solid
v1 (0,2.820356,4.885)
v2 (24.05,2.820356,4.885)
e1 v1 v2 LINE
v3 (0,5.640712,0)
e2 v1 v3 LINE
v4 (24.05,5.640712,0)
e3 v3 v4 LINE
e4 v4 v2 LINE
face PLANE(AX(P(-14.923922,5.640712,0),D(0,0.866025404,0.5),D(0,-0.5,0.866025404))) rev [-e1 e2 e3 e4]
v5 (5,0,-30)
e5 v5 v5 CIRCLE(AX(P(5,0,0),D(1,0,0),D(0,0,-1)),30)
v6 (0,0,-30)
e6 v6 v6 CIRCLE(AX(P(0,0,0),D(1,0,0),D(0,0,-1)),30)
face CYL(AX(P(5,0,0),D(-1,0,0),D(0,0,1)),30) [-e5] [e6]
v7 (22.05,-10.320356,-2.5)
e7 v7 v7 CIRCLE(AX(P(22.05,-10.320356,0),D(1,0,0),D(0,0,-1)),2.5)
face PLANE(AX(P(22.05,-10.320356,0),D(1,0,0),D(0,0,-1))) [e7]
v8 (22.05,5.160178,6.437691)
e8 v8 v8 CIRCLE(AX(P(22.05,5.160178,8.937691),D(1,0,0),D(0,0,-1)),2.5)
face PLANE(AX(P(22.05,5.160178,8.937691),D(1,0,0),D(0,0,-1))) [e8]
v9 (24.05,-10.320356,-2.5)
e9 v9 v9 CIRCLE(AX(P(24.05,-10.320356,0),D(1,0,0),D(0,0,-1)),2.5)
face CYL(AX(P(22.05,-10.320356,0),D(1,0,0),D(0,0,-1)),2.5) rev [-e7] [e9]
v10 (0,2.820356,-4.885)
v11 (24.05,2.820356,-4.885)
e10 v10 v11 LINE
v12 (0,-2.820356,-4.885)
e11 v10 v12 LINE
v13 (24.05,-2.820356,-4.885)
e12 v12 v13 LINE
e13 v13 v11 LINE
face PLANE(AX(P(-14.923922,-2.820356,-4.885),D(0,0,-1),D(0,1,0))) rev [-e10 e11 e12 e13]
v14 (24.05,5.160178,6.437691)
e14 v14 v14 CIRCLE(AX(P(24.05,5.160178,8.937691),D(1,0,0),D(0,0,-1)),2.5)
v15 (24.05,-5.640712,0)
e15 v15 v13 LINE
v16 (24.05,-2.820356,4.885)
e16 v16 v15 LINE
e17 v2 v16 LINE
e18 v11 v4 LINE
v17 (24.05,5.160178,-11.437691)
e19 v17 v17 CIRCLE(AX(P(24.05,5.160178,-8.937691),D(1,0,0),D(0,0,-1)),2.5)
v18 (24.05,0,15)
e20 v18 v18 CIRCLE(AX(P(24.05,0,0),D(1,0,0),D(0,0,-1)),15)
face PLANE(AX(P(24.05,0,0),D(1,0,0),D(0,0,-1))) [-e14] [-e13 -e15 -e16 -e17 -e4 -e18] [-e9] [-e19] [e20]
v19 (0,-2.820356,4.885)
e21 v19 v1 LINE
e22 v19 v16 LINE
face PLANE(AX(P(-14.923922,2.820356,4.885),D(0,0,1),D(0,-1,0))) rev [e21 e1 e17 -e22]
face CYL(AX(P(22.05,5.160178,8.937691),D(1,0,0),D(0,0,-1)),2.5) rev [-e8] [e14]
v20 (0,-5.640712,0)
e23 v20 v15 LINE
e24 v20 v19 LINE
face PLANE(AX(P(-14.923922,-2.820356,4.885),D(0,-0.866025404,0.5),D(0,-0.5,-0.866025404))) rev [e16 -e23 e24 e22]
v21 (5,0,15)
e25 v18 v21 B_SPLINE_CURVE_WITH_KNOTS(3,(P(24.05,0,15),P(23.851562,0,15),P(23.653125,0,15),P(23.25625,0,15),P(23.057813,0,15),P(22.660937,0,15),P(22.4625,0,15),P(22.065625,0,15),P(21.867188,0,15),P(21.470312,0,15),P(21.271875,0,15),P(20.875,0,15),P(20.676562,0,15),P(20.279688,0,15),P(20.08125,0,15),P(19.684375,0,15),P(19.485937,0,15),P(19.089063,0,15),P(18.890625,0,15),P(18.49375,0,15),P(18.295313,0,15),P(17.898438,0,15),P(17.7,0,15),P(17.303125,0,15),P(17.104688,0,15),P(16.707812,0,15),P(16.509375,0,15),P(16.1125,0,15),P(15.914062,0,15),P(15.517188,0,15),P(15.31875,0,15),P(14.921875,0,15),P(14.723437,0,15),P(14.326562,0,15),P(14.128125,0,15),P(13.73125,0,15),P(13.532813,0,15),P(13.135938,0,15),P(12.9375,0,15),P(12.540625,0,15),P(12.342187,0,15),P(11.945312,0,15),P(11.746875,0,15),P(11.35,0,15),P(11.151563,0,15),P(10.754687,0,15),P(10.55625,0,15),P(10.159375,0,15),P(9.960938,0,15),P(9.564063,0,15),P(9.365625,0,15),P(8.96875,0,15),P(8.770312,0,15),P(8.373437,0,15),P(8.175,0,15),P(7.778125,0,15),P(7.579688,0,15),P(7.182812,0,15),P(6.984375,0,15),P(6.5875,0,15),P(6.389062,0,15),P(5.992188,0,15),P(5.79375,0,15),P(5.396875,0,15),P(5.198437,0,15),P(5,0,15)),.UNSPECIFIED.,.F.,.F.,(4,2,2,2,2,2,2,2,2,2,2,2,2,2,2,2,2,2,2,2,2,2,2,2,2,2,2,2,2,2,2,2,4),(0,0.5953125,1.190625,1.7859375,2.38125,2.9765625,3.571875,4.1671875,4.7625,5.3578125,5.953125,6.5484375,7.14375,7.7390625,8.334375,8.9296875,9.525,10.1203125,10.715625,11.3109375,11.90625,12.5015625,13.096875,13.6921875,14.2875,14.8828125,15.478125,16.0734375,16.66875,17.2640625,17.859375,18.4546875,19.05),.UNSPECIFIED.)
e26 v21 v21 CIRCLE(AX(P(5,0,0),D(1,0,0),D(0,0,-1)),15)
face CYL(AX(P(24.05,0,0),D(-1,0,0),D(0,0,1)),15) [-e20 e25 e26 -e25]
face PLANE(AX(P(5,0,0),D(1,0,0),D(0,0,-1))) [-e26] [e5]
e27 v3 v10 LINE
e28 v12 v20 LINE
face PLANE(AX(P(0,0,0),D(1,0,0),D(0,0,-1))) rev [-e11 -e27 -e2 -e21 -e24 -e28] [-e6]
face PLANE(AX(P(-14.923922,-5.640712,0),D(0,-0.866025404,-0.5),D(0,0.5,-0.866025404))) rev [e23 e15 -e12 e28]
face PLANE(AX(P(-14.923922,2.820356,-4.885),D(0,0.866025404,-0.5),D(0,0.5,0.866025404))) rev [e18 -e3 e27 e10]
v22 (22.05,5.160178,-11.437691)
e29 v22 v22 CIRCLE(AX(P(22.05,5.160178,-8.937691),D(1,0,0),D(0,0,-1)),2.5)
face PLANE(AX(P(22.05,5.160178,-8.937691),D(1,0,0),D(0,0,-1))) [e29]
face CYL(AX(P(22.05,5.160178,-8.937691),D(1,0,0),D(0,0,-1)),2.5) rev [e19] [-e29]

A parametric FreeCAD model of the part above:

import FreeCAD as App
import Part
import Sketcher
Q = App.Units.Quantity

doc = App.newDocument("Part")
body = doc.addObject("PartDesign::Body", "Body")

# Sketch on YZ plane
sketch1 = body.newObject("Sketcher::SketchObject", "Sketch")
sketch1.AttachmentSupport = (doc.getObject("YZ_Plane"), [""])
sketch1.MapMode = "FlatFace"
sketch1.addGeometry(Part.Circle(App.Vector(0, 0, 0), App.Vector(0, 0, 1), 30), False)
sketch1.addConstraint([
    Sketcher.Constraint("Coincident", 0, 3, -1, 1),
    Sketcher.Constraint("Diameter", 0, 60.0),
])
pad1 = body.newObject("PartDesign::Pad", "Pad")
pad1.Profile = sketch1
pad1.Length = 5

# Sketch on YZ plane
sketch2 = body.newObject("Sketcher::SketchObject", "Sketch001")
sketch2.AttachmentSupport = (doc.getObject("YZ_Plane"), [""])
sketch2.MapMode = "FlatFace"
sketch2.AttachmentOffset = App.Placement(App.Vector(0, 0, 5), App.Rotation())
sketch2.addGeometry(Part.Circle(App.Vector(0, 0, 0), App.Vector(0, 0, 1), 15), False)
sketch2.addConstraint([
    Sketcher.Constraint("Coincident", 0, 3, -1, 1),
    Sketcher.Constraint("Diameter", 0, 30.0),
])
pad2 = body.newObject("PartDesign::Pad", "Pad001")
pad2.Profile = sketch2
pad2.Length = 19.05

# Sketch on YZ plane
sketch3 = body.newObject("Sketcher::SketchObject", "Sketch002")
sketch3.AttachmentSupport = (doc.getObject("YZ_Plane"), [""])
sketch3.MapMode = "FlatFace"
sketch3.AttachmentOffset = App.Placement(App.Vector(0, 0, 24.05), App.Rotation())
sketch3.addGeometry([
    Part.LineSegment(App.Vector(5.640712, 0, 0), App.Vector(2.820356, 4.885, 0)),  # 0
    Part.LineSegment(App.Vector(2.820356, 4.885, 0), App.Vector(-2.820356, 4.885, 0)),  # 1
    Part.LineSegment(App.Vector(-2.820356, 4.885, 0), App.Vector(-5.640712, 0, 0)),  # 2
    Part.LineSegment(App.Vector(-5.640712, 0, 0), App.Vector(-2.820356, -4.885, 0)),  # 3
    Part.LineSegment(App.Vector(-2.820356, -4.885, 0), App.Vector(2.820356, -4.885, 0)),  # 4
    Part.LineSegment(App.Vector(2.820356, -4.885, 0), App.Vector(5.640712, 0, 0)),  # 5
], False)
sketch3.addConstraint([
    Sketcher.Constraint("Coincident", 0, 2, 1, 1),
    Sketcher.Constraint("Coincident", 1, 2, 2, 1),
    Sketcher.Constraint("Coincident", 2, 2, 3, 1),
    Sketcher.Constraint("Coincident", 3, 2, 4, 1),
    Sketcher.Constraint("Coincident", 4, 2, 5, 1),
    Sketcher.Constraint("Coincident", 5, 2, 0, 1),
    Sketcher.Constraint("Horizontal", 1),
    Sketcher.Constraint("Horizontal", 4),
    Sketcher.Constraint("Symmetric", 0, 2, 3, 2, -1, 1),
    Sketcher.Constraint("Symmetric", 2, 2, 5, 2, -1, 1),
    Sketcher.Constraint("PointOnObject", 2, 2, -1),
    Sketcher.Constraint("Parallel", 2, 5),
    Sketcher.Constraint("Vertical", 1, 2, 3, 2),
    Sketcher.Constraint("Angle", 0, Q("120 deg")),
    Sketcher.Constraint("DistanceY", 3, 2, 1, 2, 9.77),
    Sketcher.Constraint("DistanceX", 1, 2, 1, 1, 5.640712),
])
pocket1 = body.newObject("PartDesign::Pocket", "Pocket")
pocket1.Profile = sketch3
pocket1.Length = 24.05

# Sketch on YZ plane
sketch4 = body.newObject("Sketcher::SketchObject", "Sketch003")
sketch4.AttachmentSupport = (doc.getObject("YZ_Plane"), [""])
sketch4.MapMode = "FlatFace"
sketch4.AttachmentOffset = App.Placement(App.Vector(0, 0, 24.05), App.Rotation())
sketch4.addGeometry([
    Part.Circle(App.Vector(5.160178, -8.937691, 0), App.Vector(0, 0, 1), 2.5),
    Part.Circle(App.Vector(5.160178, 8.937691, 0), App.Vector(0, 0, 1), 2.5),
    Part.Circle(App.Vector(-10.320356, 0, 0), App.Vector(0, 0, 1), 2.5),
], False)
sketch4.addConstraint([
    Sketcher.Constraint("Equal", 0, 1),
    Sketcher.Constraint("Equal", 1, 2),
    Sketcher.Constraint("Symmetric", 0, 3, 1, 3, -1),
    Sketcher.Constraint("PointOnObject", 2, 3, -1),
    Sketcher.Constraint("Diameter", 0, 5.0),
    Sketcher.Constraint("DistanceX", -1, 1, 0, 3, 5.160178),
    Sketcher.Constraint("DistanceY", 0, 3, -1, 1, 8.937691),
    Sketcher.Constraint("DistanceX", 2, 3, -1, 1, 10.320356),
])
pocket2 = body.newObject("PartDesign::Pocket", "Pocket001")
pocket2.Profile = sketch4
pocket2.Length = 2

doc.recompute()
